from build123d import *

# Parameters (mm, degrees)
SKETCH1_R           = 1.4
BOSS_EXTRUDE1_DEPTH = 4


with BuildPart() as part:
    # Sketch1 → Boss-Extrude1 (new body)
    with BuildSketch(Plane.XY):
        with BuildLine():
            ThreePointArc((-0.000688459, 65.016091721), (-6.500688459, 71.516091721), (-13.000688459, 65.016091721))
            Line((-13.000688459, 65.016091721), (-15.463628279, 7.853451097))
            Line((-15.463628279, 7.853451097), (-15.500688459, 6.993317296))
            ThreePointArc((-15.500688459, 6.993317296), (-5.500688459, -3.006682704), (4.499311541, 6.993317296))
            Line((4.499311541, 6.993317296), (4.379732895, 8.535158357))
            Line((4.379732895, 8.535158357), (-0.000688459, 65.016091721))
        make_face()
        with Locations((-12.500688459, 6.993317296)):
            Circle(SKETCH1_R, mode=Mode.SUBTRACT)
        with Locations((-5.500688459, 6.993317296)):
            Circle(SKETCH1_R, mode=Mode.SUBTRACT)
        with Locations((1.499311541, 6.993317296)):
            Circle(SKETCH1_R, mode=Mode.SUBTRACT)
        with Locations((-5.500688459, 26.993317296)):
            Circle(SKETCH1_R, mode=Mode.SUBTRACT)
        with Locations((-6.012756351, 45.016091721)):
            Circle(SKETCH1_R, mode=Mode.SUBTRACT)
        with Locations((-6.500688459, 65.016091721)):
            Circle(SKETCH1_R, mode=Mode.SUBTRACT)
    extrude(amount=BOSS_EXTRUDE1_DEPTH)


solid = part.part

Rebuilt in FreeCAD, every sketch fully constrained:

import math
import FreeCAD as App
import Part
import Sketcher

V = App.Vector

doc = App.newDocument("Part")
body = doc.addObject("PartDesign::Body", "Body")

# Sketch on XY plane
sketch1 = body.newObject("Sketcher::SketchObject", "Sketch")
sketch1.AttachmentSupport = (doc.getObject("XY_Plane"), [""])
sketch1.MapMode = "FlatFace"
sketch1.addGeometry([
    Part.ArcOfCircle(Part.Circle(V(-6.5, 65, 0), V(0, 0, 1), 6.5), math.radians(0), math.radians(180)),  # 0
    Part.LineSegment(V(-13, 65, 0), V(-15.5, 7.9, 0)),  # 1
    Part.LineSegment(V(-15.5, 7.9, 0), V(-15.5, 7, 0)),  # 2
    Part.ArcOfCircle(Part.Circle(V(-5.5, 7, 0), V(0, 0, 1), 10), math.radians(180), math.radians(360)),  # 3
    Part.LineSegment(V(4.5, 7, 0), V(4.4, 8.5, 0)),  # 4
    Part.LineSegment(V(4.4, 8.5, 0), V(0, 65, 0)),  # 5
    Part.Circle(V(-12.5, 7, 0), V(0, 0, 1), 1.4),  # 6
    Part.Circle(V(-5.5, 7, 0), V(0, 0, 1), 1.4),  # 7
    Part.Circle(V(-5.5, 27, 0), V(0, 0, 1), 1.4),  # 8
    Part.Circle(V(1.5, 7, 0), V(0, 0, 1), 1.4),  # 9
    Part.Circle(V(-6, 45, 0), V(0, 0, 1), 1.4),  # 10
    Part.Circle(V(-6.5, 65, 0), V(0, 0, 1), 1.4),  # 11
], False)
sketch1.addConstraint([
    Sketcher.Constraint("Coincident", 0, 2, 1, 1),
    Sketcher.Constraint("Coincident", 1, 2, 2, 1),
    Sketcher.Constraint("Coincident", 2, 2, 3, 1),
    Sketcher.Constraint("Coincident", 3, 2, 4, 1),
    Sketcher.Constraint("Coincident", 4, 2, 5, 1),
    Sketcher.Constraint("Coincident", 5, 2, 0, 1),
    Sketcher.Constraint("Coincident", 7, 3, 3, 3),
    Sketcher.Constraint("Coincident", 11, 3, 0, 3),
    Sketcher.Constraint("Equal", 6, 7),
    Sketcher.Constraint("Equal", 7, 8),
    Sketcher.Constraint("Equal", 8, 9),
    Sketcher.Constraint("Equal", 9, 10),
    Sketcher.Constraint("Equal", 10, 11),
    Sketcher.Constraint("Parallel", 1, 2),
    Sketcher.Constraint("Parallel", 4, 5),
    Sketcher.Constraint("Horizontal", 3, 3, 6, 3),
    Sketcher.Constraint("Horizontal", 7, 3, 9, 3),
    Sketcher.Constraint("Horizontal", 11, 3, 0, 2),
    Sketcher.Constraint("Horizontal", 9, 3, 2, 2),
    Sketcher.Constraint("Horizontal", 2, 2, 3, 2),
    Sketcher.Constraint("Horizontal", 0, 2, 5, 2),
    Sketcher.Constraint("Vertical", 7, 3, 8, 3),
    Sketcher.Constraint("Radius", 3, 10.0),
    Sketcher.Constraint("Diameter", 6, 2.8),
    Sketcher.Constraint("Radius", 0, 6.5),
    Sketcher.Constraint("DistanceX", 0, 3, 3, 3, 1.0),
    Sketcher.Constraint("DistanceX", 6, 3, 3, 3, 7.0),
    Sketcher.Constraint("DistanceY", 3, 3, 8, 3, 20.0),
    Sketcher.Constraint("DistanceX", 3, 3, 9, 3, 7.0),
    Sketcher.Constraint("DistanceY", 10, 3, 0, 3, 20.0),
    Sketcher.Constraint("Distance", 2, 0.860932),
    Sketcher.Constraint("Distance", 4, 1.546471),
    Sketcher.Constraint("DistanceX", 0, 3, -1, 1, 6.500688),
    Sketcher.Constraint("DistanceY", -1, 1, 0, 3, 65.016092),
    Sketcher.Constraint("DistanceY", -1, 1, 1, 2, 7.853451),
    Sketcher.Constraint("DistanceX", 10, 3, -1, 1, 6.012756),
])
pad1 = body.newObject("PartDesign::Pad", "Pad")
pad1.Profile = sketch1
pad1.Length = 4

doc.recompute()
